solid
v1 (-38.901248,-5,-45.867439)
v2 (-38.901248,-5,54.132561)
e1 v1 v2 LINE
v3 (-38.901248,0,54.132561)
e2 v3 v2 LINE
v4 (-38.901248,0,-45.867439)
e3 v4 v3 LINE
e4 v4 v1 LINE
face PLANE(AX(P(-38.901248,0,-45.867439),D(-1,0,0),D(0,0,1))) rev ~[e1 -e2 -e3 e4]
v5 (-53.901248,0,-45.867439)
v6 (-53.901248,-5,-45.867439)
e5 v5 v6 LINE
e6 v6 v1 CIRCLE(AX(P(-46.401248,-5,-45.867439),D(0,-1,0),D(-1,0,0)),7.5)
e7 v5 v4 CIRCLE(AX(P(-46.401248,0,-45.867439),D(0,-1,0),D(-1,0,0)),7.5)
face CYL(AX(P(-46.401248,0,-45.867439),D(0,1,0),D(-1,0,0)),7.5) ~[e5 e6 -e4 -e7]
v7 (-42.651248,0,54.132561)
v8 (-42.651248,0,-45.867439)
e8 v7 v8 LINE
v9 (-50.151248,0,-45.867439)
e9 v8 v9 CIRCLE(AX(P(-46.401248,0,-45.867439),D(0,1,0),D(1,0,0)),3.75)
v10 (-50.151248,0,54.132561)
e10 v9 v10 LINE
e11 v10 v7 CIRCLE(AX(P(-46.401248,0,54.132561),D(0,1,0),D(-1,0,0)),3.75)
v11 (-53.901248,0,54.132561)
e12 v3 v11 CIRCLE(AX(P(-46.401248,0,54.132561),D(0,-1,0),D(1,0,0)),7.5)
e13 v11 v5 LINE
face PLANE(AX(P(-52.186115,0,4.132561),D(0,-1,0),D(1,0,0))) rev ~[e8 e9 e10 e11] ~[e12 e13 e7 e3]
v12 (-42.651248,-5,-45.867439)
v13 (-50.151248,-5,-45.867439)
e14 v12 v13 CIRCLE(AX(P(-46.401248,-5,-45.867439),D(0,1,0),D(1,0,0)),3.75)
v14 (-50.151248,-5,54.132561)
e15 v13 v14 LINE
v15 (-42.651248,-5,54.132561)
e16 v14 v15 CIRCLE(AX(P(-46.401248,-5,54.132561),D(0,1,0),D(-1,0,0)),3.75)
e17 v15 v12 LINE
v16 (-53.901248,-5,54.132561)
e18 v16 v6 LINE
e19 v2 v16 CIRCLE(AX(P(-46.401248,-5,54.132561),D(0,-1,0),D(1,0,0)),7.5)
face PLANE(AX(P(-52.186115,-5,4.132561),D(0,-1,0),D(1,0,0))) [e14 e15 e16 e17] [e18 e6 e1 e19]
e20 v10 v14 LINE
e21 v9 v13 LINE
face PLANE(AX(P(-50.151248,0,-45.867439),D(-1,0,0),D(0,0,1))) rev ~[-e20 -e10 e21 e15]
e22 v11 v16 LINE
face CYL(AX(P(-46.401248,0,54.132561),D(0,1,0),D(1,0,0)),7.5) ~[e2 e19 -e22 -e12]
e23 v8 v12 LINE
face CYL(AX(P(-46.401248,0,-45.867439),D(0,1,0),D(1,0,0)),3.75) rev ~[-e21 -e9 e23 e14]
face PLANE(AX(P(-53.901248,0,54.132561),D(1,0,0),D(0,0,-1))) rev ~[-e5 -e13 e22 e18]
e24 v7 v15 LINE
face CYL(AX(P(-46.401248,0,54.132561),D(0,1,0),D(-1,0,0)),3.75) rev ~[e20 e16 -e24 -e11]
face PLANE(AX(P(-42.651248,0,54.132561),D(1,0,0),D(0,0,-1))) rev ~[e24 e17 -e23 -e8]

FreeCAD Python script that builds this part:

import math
import FreeCAD as App
import Part
import Sketcher

V = App.Vector
Q = App.Units.Quantity

doc = App.newDocument("Part")
params = doc.addObject("Spreadsheet::Sheet", "Params")
for row, (alias, value) in enumerate([
    ("sketch1_radius", "7.5 mm"),
    ("sketch1_height", "100 mm"),
    ("sketch1_radius2", "3.75 mm"),
    ("pad1_length", "5 mm"),
], start=1):
    params.set(f"A{row}", alias)
    params.set(f"B{row}", "=" + value)
    params.setAlias(f"B{row}", alias)

body = doc.addObject("PartDesign::Body", "Body")

# Sketch on XZ plane
sketch1 = body.newObject("Sketcher::SketchObject", "Sketch")
sketch1.AttachmentSupport = (doc.getObject("XZ_Plane"), [""])
sketch1.MapMode = "FlatFace"
sketch1.addGeometry(Part.LineSegment(V(-53.9, 54.1, 0), V(-53.9, -45.9, 0)), False)
sketch1.addGeometry(Part.ArcOfCircle(Part.Circle(V(-46.4, -45.9, 0), V(0, 0, 1), 7.5), math.radians(180), math.radians(360)), False)
sketch1.addGeometry(Part.LineSegment(V(-38.9, -45.9, 0), V(-38.9, 54.1, 0)), False)
sketch1.addGeometry(Part.ArcOfCircle(Part.Circle(V(-46.4, 54.1, 0), V(0, 0, 1), 7.5), math.radians(0), math.radians(180)), False)
sketch1.addGeometry(Part.ArcOfCircle(Part.Circle(V(-46.4, -45.9, 0), V(0, 0, 1), 3.8), math.radians(180), math.radians(360)), False)
sketch1.addGeometry(Part.LineSegment(V(-50.2, -45.9, 0), V(-50.2, 54.1, 0)), False)
sketch1.addGeometry(Part.ArcOfCircle(Part.Circle(V(-46.4, 54.1, 0), V(0, 0, 1), 3.8), math.radians(0), math.radians(180)), False)
sketch1.addGeometry(Part.LineSegment(V(-42.7, 54.1, 0), V(-42.7, -45.9, 0)), False)
sketch1.addConstraint(Sketcher.Constraint("Tangent", 0, 2, 1, 1))
sketch1.addConstraint(Sketcher.Constraint("Tangent", 1, 2, 2, 1))
sketch1.addConstraint(Sketcher.Constraint("Tangent", 2, 2, 3, 1))
sketch1.addConstraint(Sketcher.Constraint("Tangent", 3, 2, 0, 1))
sketch1.addConstraint(Sketcher.Constraint("Tangent", 4, 1, 5, 1))
sketch1.addConstraint(Sketcher.Constraint("Tangent", 5, 2, 6, 2))
sketch1.addConstraint(Sketcher.Constraint("Tangent", 6, 1, 7, 1))
sketch1.addConstraint(Sketcher.Constraint("Tangent", 7, 2, 4, 2))
sketch1.addConstraint(Sketcher.Constraint("Vertical", 0))
sketch1.addConstraint(Sketcher.Constraint("Vertical", 2))
sketch1.addConstraint(Sketcher.Constraint("Vertical", 5))
sketch1.addConstraint(Sketcher.Constraint("Vertical", 7))
sketch1.addConstraint(Sketcher.Constraint("Coincident", 4, 3, 1, 3))
sketch1.addConstraint(Sketcher.Constraint("Horizontal", 6, 3, 2, 2))
sketch1.addConstraint(Sketcher.Constraint("Radius", 1, Q("7.5 mm")))
sketch1.addConstraint(Sketcher.Constraint("DistanceY", 0, 2, 0, 1, Q("100 mm")))
sketch1.addConstraint(Sketcher.Constraint("Radius", 4, Q("3.75 mm")))
sketch1.addConstraint(Sketcher.Constraint("DistanceY", 1, 3, -1, 1, Q("45.867439 mm")))
sketch1.addConstraint(Sketcher.Constraint("DistanceX", 1, 3, -1, 1, Q("46.401248 mm")))
sketch1.setExpression("Constraints[14]", "Params.sketch1_radius")
sketch1.setExpression("Constraints[15]", "Params.sketch1_height")
sketch1.setExpression("Constraints[16]", "Params.sketch1_radius2")
pad1 = body.newObject("PartDesign::Pad", "Pad")
pad1.Profile = sketch1
pad1.setExpression("Length", "Params.pad1_length")

doc.recompute()
